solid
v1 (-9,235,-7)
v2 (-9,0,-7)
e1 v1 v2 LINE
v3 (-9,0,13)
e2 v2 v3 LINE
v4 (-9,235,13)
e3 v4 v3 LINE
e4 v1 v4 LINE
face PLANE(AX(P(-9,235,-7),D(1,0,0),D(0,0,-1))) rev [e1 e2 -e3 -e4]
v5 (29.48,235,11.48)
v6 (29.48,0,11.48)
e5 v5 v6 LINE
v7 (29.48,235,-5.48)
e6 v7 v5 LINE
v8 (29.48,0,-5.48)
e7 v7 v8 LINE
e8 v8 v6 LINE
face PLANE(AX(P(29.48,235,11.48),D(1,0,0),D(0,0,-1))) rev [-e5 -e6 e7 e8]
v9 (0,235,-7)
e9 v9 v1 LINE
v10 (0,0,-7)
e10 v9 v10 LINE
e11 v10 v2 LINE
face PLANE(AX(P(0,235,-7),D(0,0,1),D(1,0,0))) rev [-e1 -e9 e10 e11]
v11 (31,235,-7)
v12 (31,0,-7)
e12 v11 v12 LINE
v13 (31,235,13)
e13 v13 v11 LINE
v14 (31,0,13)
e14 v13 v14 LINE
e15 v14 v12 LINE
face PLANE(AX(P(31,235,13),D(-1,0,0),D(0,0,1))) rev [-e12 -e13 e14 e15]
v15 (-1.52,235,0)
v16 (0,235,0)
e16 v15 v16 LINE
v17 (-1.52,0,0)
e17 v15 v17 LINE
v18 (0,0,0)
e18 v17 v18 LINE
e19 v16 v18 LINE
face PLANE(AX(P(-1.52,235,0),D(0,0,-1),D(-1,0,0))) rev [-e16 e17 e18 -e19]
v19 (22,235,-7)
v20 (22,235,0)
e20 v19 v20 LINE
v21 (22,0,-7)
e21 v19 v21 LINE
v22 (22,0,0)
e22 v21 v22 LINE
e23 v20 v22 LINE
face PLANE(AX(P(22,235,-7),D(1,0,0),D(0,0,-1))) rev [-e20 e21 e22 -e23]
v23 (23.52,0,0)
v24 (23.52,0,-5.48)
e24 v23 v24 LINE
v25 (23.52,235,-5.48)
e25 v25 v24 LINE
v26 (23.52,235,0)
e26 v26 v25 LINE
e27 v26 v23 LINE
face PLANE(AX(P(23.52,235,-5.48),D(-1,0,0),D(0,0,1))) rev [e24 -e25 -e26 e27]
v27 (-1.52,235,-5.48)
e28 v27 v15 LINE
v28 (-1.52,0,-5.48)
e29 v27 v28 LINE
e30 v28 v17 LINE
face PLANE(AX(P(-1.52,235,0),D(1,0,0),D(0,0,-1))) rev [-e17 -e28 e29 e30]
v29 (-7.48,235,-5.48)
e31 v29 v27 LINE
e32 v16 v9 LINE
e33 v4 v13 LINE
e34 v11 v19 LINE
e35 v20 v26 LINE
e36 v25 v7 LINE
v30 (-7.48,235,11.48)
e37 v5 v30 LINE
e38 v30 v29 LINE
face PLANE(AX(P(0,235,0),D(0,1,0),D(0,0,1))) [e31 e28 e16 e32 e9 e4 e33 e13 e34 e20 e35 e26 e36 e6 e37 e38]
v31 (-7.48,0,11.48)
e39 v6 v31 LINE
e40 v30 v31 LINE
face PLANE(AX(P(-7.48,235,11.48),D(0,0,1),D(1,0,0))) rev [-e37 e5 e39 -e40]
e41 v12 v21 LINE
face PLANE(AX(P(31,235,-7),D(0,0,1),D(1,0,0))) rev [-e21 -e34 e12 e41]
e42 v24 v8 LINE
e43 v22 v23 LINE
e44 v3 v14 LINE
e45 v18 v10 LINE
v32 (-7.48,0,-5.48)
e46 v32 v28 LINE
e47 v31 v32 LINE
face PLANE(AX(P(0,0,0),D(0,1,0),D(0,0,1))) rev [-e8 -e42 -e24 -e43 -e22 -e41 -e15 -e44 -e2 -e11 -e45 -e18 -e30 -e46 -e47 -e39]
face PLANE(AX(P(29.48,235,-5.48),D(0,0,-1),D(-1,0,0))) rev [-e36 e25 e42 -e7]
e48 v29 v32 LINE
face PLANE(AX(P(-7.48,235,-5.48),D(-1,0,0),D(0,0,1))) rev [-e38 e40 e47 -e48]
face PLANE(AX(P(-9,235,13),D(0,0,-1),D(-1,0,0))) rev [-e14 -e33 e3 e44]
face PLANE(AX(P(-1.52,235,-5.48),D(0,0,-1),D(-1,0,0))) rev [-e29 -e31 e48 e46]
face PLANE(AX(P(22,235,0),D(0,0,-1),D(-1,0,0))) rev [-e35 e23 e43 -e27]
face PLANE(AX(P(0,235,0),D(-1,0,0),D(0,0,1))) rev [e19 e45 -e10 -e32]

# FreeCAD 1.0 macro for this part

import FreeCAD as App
import Part
import Sketcher
from FreeCAD import Vector
Q = App.Units.Quantity

doc = App.newDocument("Part")
body = doc.addObject("PartDesign::Body", "Body")

# Sketch on XZ plane
sketch1 = body.newObject("Sketcher::SketchObject", "Sketch")
sketch1.AttachmentSupport = (doc.getObject("XZ_Plane"), [""])
sketch1.MapMode = "FlatFace"
sketch1.addGeometry([
    Part.LineSegment(Vector(0, 0, 0), Vector(0, -7, 0)),  # 0
    Part.LineSegment(Vector(0, -7, 0), Vector(-9, -7, 0)),  # 1
    Part.LineSegment(Vector(-9, -7, 0), Vector(-9, 13, 0)),  # 2
    Part.LineSegment(Vector(-9, 13, 0), Vector(31, 13, 0)),  # 3
    Part.LineSegment(Vector(31, 13, 0), Vector(31, -7, 0)),  # 4
    Part.LineSegment(Vector(31, -7, 0), Vector(22, -7, 0)),  # 5
    Part.LineSegment(Vector(22, -7, 0), Vector(22, 0, 0)),  # 6
    Part.LineSegment(Vector(22, 0, 0), Vector(23.5, 0, 0)),  # 7
    Part.LineSegment(Vector(23.5, 0, 0), Vector(23.5, -5.5, 0)),  # 8
    Part.LineSegment(Vector(23.5, -5.5, 0), Vector(29.5, -5.5, 0)),  # 9
    Part.LineSegment(Vector(29.5, -5.5, 0), Vector(29.5, 11.5, 0)),  # 10
    Part.LineSegment(Vector(29.5, 11.5, 0), Vector(-7.5, 11.5, 0)),  # 11
    Part.LineSegment(Vector(-7.5, 11.5, 0), Vector(-7.5, -5.5, 0)),  # 12
    Part.LineSegment(Vector(-7.5, -5.5, 0), Vector(-1.5, -5.5, 0)),  # 13
    Part.LineSegment(Vector(-1.5, -5.5, 0), Vector(-1.5, 0, 0)),  # 14
    Part.LineSegment(Vector(-1.5, 0, 0), Vector(0, 0, 0)),  # 15
], False)
sketch1.addConstraint([
    Sketcher.Constraint("Coincident", 0, 2, 1, 1),
    Sketcher.Constraint("Coincident", 1, 2, 2, 1),
    Sketcher.Constraint("Coincident", 2, 2, 3, 1),
    Sketcher.Constraint("Coincident", 3, 2, 4, 1),
    Sketcher.Constraint("Coincident", 4, 2, 5, 1),
    Sketcher.Constraint("Coincident", 5, 2, 6, 1),
    Sketcher.Constraint("Coincident", 6, 2, 7, 1),
    Sketcher.Constraint("Coincident", 7, 2, 8, 1),
    Sketcher.Constraint("Coincident", 8, 2, 9, 1),
    Sketcher.Constraint("Coincident", 9, 2, 10, 1),
    Sketcher.Constraint("Coincident", 10, 2, 11, 1),
    Sketcher.Constraint("Coincident", 11, 2, 12, 1),
    Sketcher.Constraint("Coincident", 12, 2, 13, 1),
    Sketcher.Constraint("Coincident", 13, 2, 14, 1),
    Sketcher.Constraint("Coincident", 14, 2, 15, 1),
    Sketcher.Constraint("Coincident", 15, 2, 0, 1),
    Sketcher.Constraint("Vertical", 0),
    Sketcher.Constraint("Horizontal", 1),
    Sketcher.Constraint("Vertical", 2),
    Sketcher.Constraint("Horizontal", 3),
    Sketcher.Constraint("Vertical", 4),
    Sketcher.Constraint("Horizontal", 5),
    Sketcher.Constraint("Vertical", 6),
    Sketcher.Constraint("Horizontal", 7),
    Sketcher.Constraint("Vertical", 8),
    Sketcher.Constraint("Horizontal", 9),
    Sketcher.Constraint("Vertical", 10),
    Sketcher.Constraint("Horizontal", 11),
    Sketcher.Constraint("Vertical", 12),
    Sketcher.Constraint("Horizontal", 13),
    Sketcher.Constraint("Vertical", 14),
    Sketcher.Constraint("Horizontal", 15),
    Sketcher.Constraint("Coincident", 15, 2, -1, 1),
    Sketcher.Constraint("PointOnObject", 6, 2, -1),
    Sketcher.Constraint("Horizontal", 1, 2, 4, 2),
    Sketcher.Constraint("Horizontal", 9, 2, 12, 2),
    Sketcher.Constraint("Equal", 1, 5),
    Sketcher.Constraint("Equal", 9, 13),
    Sketcher.Constraint("Equal", 7, 15),
    Sketcher.Constraint("DistanceX", 1, 2, 1, 1, Q("9 mm")),
    Sketcher.Constraint("DistanceX", 3, 1, 3, 2, Q("40 mm")),
    Sketcher.Constraint("DistanceY", 0, 2, 0, 1, Q("7 mm")),
    Sketcher.Constraint("DistanceY", 2, 1, 2, 2, Q("20 mm")),
    Sketcher.Constraint("DistanceX", 11, 2, 7, 2, Q("31 mm")),
    Sketcher.Constraint("DistanceX", 7, 1, 7, 2, Q("1.52 mm")),
    Sketcher.Constraint("DistanceY", 8, 2, 8, 1, Q("5.48 mm")),
    Sketcher.Constraint("DistanceY", 10, 1, 10, 2, Q("16.96 mm")),
])
pad1 = body.newObject("PartDesign::Pad", "Pad")
pad1.Profile = sketch1
pad1.Length = 235
pad1.Reversed = True

doc.recompute()
